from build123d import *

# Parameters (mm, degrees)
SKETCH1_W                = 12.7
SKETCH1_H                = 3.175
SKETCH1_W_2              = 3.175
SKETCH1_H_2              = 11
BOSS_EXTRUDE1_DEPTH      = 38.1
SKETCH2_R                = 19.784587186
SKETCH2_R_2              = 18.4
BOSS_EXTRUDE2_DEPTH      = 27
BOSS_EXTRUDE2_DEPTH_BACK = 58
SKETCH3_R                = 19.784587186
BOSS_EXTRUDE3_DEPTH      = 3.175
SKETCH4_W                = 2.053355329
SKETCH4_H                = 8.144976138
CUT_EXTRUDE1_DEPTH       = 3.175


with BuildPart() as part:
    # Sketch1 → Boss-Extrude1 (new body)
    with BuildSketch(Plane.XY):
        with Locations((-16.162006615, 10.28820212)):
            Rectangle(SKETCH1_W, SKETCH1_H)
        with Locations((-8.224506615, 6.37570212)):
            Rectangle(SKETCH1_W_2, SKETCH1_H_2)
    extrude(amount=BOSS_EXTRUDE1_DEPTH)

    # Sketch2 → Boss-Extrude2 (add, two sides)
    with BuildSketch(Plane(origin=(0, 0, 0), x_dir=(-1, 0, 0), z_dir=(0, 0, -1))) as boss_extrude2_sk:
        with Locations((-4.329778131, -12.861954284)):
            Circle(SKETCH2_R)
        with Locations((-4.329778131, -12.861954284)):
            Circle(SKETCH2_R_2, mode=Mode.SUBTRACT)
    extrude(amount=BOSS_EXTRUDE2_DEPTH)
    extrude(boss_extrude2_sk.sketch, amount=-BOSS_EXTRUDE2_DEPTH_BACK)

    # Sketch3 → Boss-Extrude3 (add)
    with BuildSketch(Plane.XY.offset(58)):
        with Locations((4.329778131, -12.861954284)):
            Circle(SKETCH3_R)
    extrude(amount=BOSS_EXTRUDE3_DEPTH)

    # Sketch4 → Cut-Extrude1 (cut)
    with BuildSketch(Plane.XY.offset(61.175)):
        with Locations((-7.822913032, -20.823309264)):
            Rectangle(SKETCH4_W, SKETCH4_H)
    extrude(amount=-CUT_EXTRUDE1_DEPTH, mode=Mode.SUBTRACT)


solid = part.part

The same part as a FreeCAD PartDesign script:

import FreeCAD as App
import Part
import Sketcher
from FreeCAD import Vector
Q = App.Units.Quantity

doc = App.newDocument("Part")
body = doc.addObject("PartDesign::Body", "Body")

sketch1 = doc.addObject("Sketcher::SketchObject", "Sketch")
body.addObject(sketch1)
sketch1.AttachmentSupport = (doc.XY_Plane, [""])
sketch1.MapMode = "FlatFace"
sketch1.addGeometry([
    Part.LineSegment(Vector(-22.5, 11.9, 0), Vector(-22.5, 8.7, 0)),
    Part.LineSegment(Vector(-22.5, 8.7, 0), Vector(-9.8, 8.7, 0)),
    Part.LineSegment(Vector(-9.8, 8.7, 0), Vector(-9.8, 0.9, 0)),
    Part.LineSegment(Vector(-9.8, 0.9, 0), Vector(-6.6, 0.9, 0)),
    Part.LineSegment(Vector(-6.6, 0.9, 0), Vector(-6.6, 11.9, 0)),
    Part.LineSegment(Vector(-6.6, 11.9, 0), Vector(-22.5, 11.9, 0)),
], False)
sketch1.addConstraint([
    Sketcher.Constraint("Coincident", 0, 2, 1, 1),
    Sketcher.Constraint("Coincident", 1, 2, 2, 1),
    Sketcher.Constraint("Coincident", 2, 2, 3, 1),
    Sketcher.Constraint("Coincident", 3, 2, 4, 1),
    Sketcher.Constraint("Coincident", 4, 2, 5, 1),
    Sketcher.Constraint("Coincident", 5, 2, 0, 1),
    Sketcher.Constraint("Vertical", 0),
    Sketcher.Constraint("Horizontal", 1),
    Sketcher.Constraint("Vertical", 2),
    Sketcher.Constraint("Horizontal", 3),
    Sketcher.Constraint("Vertical", 4),
    Sketcher.Constraint("Horizontal", 5),
    Sketcher.Constraint("Equal", 3, 0),
    Sketcher.Constraint("DistanceX", 1, 1, 1, 2, Q("0.5 in")),
    Sketcher.Constraint("DistanceX", 3, 1, 3, 2, Q("0.125 in")),
    Sketcher.Constraint("DistanceY", 2, 2, 2, 1, Q("7.825 mm")),
    Sketcher.Constraint("DistanceX", 0, 2, -1, 1, Q("22.512007 mm")),
    Sketcher.Constraint("DistanceY", -1, 1, 0, 2, Q("8.700702 mm")),
])
pad1 = doc.addObject("PartDesign::Pad", "Pad")
body.addObject(pad1)
pad1.Profile = sketch1
pad1.Length = Q("1.5 in")

sketch2 = doc.addObject("Sketcher::SketchObject", "Sketch001")
body.addObject(sketch2)
sketch2.AttachmentSupport = (doc.XY_Plane, [""])
sketch2.MapMode = "FlatFace"
sketch2.addGeometry([
    Part.Circle(Vector(4, -13, 0), Vector(0, 0, 1), 20),
    Part.Circle(Vector(4, -13, 0), Vector(0, 0, 1), 18),
], False)
sketch2.addConstraint([
    Sketcher.Constraint("Coincident", 1, 3, 0, 3),
    Sketcher.Constraint("Diameter", 1, Q("36.8 mm")),
    Sketcher.Constraint("Diameter", 0, Q("39.569174 mm")),
    Sketcher.Constraint("DistanceX", -1, 1, 0, 3, Q("4.329778 mm")),
    Sketcher.Constraint("DistanceY", 0, 3, -1, 1, Q("12.861954 mm")),
])
pad2 = doc.addObject("PartDesign::Pad", "Pad001")
body.addObject(pad2)
pad2.Profile = sketch2
pad2.Type = "TwoLengths"
pad2.Length = 27
pad2.Length2 = 58
pad2.Reversed = True

sketch3 = doc.addObject("Sketcher::SketchObject", "Sketch002")
body.addObject(sketch3)
sketch3.AttachmentSupport = (doc.XY_Plane, [""])
sketch3.MapMode = "FlatFace"
sketch3.AttachmentOffset = App.Placement(Vector(0, 0, 58), App.Rotation())
sketch3.addGeometry(Part.Circle(Vector(4, -13, 0), Vector(0, 0, 1), 20), False)
sketch3.addConstraint([
    Sketcher.Constraint("Diameter", 0, Q("39.569174 mm")),
    Sketcher.Constraint("DistanceX", -1, 1, 0, 3, Q("4.329778 mm")),
    Sketcher.Constraint("DistanceY", 0, 3, -1, 1, Q("12.861954 mm")),
])
pad3 = doc.addObject("PartDesign::Pad", "Pad002")
body.addObject(pad3)
pad3.Profile = sketch3
pad3.Length = Q("0.125 in")

sketch4 = doc.addObject("Sketcher::SketchObject", "Sketch003")
body.addObject(sketch4)
sketch4.AttachmentSupport = (doc.XY_Plane, [""])
sketch4.MapMode = "FlatFace"
sketch4.AttachmentOffset = App.Placement(Vector(0, 0, 61.175), App.Rotation())
sketch4.addGeometry([
    Part.LineSegment(Vector(-8.8, -16.8, 0), Vector(-8.8, -24.9, 0)),
    Part.LineSegment(Vector(-8.8, -24.9, 0), Vector(-6.8, -24.9, 0)),
    Part.LineSegment(Vector(-6.8, -24.9, 0), Vector(-6.8, -16.8, 0)),
    Part.LineSegment(Vector(-6.8, -16.8, 0), Vector(-8.8, -16.8, 0)),
], False)
sketch4.addConstraint([
    Sketcher.Constraint("Coincident", 0, 2, 1, 1),
    Sketcher.Constraint("Coincident", 1, 2, 2, 1),
    Sketcher.Constraint("Coincident", 2, 2, 3, 1),
    Sketcher.Constraint("Coincident", 3, 2, 0, 1),
    Sketcher.Constraint("Vertical", 0),
    Sketcher.Constraint("Horizontal", 1),
    Sketcher.Constraint("Vertical", 2),
    Sketcher.Constraint("Horizontal", 3),
    Sketcher.Constraint("DistanceX", 1, 1, 1, 2, Q("2.053355 mm")),
    Sketcher.Constraint("DistanceY", 0, 2, 0, 1, Q("8.144976 mm")),
    Sketcher.Constraint("DistanceX", 0, 2, -1, 1, Q("8.849591 mm")),
    Sketcher.Constraint("DistanceY", 2, 2, -1, 1, Q("16.750821 mm")),
])
pocket1 = doc.addObject("PartDesign::Pocket", "Pocket")
body.addObject(pocket1)
pocket1.Profile = sketch4
pocket1.Length = Q("0.125 in")

doc.recompute()
